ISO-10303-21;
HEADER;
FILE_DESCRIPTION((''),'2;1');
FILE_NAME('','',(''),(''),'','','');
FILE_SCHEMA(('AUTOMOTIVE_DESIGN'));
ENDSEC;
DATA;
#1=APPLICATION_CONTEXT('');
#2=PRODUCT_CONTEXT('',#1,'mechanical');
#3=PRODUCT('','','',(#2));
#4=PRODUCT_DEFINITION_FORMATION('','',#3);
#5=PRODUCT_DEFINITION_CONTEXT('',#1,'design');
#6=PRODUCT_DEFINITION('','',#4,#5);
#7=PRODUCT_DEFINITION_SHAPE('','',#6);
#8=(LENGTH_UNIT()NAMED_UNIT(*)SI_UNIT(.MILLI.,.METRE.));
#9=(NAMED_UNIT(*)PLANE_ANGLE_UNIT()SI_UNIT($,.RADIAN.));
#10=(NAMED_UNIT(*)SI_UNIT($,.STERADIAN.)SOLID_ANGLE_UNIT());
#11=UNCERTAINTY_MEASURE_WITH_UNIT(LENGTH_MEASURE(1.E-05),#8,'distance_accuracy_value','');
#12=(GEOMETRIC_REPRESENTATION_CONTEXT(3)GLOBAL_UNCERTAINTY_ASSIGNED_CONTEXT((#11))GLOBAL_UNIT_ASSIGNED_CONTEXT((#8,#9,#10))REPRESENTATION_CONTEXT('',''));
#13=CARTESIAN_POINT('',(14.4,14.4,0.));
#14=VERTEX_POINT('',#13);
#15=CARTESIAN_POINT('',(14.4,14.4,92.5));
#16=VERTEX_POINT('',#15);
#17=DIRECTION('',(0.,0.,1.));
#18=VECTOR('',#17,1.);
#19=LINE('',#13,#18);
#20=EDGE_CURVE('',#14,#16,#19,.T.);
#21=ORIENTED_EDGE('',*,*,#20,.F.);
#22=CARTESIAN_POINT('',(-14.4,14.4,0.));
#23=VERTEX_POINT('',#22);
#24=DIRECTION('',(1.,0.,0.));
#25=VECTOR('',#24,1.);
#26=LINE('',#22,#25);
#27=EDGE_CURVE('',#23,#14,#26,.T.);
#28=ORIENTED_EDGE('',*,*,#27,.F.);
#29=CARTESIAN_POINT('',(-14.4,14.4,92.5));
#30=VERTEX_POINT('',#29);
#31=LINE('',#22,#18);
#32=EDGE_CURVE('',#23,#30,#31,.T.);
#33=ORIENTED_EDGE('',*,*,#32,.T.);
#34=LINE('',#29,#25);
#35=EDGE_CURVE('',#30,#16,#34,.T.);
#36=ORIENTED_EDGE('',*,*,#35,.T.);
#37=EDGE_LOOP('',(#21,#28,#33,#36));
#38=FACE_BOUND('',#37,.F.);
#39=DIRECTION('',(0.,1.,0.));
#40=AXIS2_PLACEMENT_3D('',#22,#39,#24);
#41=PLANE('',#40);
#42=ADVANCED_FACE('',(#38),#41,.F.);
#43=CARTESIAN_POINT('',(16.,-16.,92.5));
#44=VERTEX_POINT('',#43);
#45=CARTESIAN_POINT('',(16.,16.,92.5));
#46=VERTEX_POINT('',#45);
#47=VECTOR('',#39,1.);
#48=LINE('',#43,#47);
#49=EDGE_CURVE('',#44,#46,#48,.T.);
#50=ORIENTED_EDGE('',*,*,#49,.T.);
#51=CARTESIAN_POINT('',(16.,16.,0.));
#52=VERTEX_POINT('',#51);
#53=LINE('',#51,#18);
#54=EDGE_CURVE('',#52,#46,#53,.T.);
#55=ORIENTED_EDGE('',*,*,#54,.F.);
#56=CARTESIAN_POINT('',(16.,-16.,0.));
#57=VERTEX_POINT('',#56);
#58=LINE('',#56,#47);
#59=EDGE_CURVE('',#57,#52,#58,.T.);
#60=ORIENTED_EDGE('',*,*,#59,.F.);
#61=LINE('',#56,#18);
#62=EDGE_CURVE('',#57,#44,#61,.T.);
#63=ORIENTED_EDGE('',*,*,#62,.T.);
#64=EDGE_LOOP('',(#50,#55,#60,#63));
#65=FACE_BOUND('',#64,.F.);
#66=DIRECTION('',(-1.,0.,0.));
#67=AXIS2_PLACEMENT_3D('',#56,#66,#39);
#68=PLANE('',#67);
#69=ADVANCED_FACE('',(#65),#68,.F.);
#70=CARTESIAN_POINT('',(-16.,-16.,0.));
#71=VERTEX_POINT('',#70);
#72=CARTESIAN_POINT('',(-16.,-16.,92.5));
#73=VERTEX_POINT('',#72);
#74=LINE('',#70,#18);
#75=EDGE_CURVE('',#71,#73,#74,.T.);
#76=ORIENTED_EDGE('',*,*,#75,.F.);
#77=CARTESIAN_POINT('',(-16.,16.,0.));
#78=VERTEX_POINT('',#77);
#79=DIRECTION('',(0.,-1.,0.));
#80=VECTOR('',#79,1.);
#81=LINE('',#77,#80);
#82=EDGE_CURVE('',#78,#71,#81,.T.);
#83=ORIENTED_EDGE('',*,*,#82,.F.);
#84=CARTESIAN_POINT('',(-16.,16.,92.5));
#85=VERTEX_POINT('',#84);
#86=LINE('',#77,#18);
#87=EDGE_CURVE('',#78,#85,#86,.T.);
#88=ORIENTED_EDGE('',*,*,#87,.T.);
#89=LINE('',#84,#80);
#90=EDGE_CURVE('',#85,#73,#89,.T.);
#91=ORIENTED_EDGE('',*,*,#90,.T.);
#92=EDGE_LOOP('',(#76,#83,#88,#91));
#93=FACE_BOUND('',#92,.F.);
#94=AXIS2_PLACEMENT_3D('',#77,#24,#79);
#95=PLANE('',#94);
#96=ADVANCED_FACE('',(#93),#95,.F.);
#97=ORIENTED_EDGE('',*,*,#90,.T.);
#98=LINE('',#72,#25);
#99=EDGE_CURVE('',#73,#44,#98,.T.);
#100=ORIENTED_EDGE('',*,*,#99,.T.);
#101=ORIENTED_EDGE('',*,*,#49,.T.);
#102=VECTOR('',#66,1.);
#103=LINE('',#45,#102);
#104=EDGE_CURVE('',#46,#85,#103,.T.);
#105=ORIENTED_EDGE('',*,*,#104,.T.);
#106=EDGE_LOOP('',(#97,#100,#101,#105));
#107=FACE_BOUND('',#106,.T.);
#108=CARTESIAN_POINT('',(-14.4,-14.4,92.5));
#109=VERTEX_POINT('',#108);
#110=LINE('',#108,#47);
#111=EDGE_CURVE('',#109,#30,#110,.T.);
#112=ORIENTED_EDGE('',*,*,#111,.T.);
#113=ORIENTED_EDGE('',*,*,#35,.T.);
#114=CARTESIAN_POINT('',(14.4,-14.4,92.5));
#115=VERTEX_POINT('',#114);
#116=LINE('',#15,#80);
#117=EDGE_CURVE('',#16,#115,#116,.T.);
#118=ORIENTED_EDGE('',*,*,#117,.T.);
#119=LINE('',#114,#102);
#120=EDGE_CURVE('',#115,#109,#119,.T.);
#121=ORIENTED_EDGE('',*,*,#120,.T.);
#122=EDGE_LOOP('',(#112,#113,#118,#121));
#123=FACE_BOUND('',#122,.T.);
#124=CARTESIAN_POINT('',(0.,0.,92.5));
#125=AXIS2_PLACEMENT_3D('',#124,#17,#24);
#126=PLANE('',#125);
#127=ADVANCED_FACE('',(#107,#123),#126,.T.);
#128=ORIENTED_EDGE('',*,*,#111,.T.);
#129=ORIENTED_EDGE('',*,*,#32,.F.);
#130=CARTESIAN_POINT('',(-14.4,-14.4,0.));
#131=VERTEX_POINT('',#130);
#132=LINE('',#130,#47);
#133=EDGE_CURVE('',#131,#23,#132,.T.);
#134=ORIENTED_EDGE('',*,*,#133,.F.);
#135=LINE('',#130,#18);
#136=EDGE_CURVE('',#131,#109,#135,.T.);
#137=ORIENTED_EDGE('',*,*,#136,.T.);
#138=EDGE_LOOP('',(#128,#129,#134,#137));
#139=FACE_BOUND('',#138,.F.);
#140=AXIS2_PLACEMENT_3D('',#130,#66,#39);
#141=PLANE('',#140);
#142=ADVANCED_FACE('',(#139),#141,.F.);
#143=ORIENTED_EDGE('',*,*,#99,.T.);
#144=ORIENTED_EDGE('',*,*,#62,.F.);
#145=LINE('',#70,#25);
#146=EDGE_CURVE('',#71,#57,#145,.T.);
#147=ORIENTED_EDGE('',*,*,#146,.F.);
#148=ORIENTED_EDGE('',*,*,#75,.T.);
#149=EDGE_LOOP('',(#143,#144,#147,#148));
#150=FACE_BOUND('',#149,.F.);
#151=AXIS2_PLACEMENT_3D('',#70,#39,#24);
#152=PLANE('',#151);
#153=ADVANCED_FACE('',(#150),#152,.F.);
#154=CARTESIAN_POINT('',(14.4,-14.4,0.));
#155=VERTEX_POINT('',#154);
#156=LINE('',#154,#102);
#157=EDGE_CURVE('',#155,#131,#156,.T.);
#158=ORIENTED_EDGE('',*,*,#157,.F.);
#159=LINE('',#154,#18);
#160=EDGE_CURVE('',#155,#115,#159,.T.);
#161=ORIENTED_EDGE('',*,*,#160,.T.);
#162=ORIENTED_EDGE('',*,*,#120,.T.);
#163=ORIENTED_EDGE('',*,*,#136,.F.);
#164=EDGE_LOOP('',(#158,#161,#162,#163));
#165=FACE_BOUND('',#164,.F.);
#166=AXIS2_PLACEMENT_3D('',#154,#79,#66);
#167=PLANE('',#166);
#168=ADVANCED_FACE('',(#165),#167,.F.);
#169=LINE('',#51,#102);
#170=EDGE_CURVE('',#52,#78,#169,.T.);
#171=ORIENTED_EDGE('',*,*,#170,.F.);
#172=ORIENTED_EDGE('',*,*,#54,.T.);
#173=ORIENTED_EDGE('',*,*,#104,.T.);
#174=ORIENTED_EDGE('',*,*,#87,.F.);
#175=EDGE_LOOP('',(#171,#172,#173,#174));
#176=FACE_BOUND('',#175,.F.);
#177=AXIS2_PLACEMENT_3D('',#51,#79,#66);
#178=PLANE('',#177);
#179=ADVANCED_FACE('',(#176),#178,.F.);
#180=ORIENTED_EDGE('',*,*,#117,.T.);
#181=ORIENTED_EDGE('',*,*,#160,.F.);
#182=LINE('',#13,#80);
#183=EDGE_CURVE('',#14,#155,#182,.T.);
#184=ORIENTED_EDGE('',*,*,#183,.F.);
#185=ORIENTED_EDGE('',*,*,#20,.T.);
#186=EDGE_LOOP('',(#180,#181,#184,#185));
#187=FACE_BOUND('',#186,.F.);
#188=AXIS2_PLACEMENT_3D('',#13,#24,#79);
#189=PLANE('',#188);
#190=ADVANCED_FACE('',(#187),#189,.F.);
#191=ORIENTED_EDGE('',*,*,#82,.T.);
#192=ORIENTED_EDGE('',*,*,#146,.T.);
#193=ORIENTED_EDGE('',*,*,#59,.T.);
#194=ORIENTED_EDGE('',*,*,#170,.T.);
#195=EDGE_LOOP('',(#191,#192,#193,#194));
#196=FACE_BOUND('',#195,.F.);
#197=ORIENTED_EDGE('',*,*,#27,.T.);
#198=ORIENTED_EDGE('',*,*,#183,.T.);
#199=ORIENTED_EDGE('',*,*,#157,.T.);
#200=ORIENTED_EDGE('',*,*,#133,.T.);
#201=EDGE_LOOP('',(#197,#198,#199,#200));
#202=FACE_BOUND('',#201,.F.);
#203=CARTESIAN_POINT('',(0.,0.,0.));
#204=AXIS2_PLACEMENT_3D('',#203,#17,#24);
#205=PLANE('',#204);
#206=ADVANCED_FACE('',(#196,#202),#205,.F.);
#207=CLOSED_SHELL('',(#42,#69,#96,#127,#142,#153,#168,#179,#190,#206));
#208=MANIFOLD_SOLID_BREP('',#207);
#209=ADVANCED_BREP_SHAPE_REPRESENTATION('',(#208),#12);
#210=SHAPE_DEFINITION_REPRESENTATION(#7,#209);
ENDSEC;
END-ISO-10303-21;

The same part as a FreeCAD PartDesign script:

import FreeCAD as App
import Part
import Sketcher
from FreeCAD import Vector
Q = App.Units.Quantity


def add_polygon(sketch, points):
    """Adds a closed chain of lines whose ends are joined by coincident constraints."""
    first, n = sketch.GeometryCount, len(points)
    for a, b in zip(points, points[1:] + points[:1]):
        sketch.addGeometry(Part.LineSegment(App.Vector(*a, 0), App.Vector(*b, 0)), False)
    for i in range(n):
        sketch.addConstraint(Sketcher.Constraint("Coincident", first + i, 2, first + (i + 1) % n, 1))

doc = App.newDocument("Part")
body = doc.addObject("PartDesign::Body", "Body")

sketch1 = doc.addObject("Sketcher::SketchObject", "Sketch")
body.addObject(sketch1)
sketch1.AttachmentSupport = (doc.XY_Plane, [""])
sketch1.MapMode = "FlatFace"
add_polygon(sketch1, [(-16, 16), (-16, -16), (16, -16), (16, 16)])
add_polygon(sketch1, [(-14, -14), (-14, 14), (14, 14), (14, -14)])
sketch1.addConstraint([
    Sketcher.Constraint("Vertical", 0),
    Sketcher.Constraint("Horizontal", 1),
    Sketcher.Constraint("Vertical", 2),
    Sketcher.Constraint("Horizontal", 3),
    Sketcher.Constraint("Vertical", 4),
    Sketcher.Constraint("Horizontal", 5),
    Sketcher.Constraint("Vertical", 6),
    Sketcher.Constraint("Horizontal", 7),
    Sketcher.Constraint("Symmetric", 0, 2, 2, 2, -1, 1),
    Sketcher.Constraint("Symmetric", 4, 2, 6, 2, -1, 1),
    Sketcher.Constraint("Equal", 3, 0),
    Sketcher.Constraint("Equal", 7, 4),
    Sketcher.Constraint("DistanceX", 1, 1, 1, 2, Q("32 mm")),
    Sketcher.Constraint("DistanceX", 3, 2, 4, 2, Q("1.6 mm")),
])
pad1 = doc.addObject("PartDesign::Pad", "Pad")
body.addObject(pad1)
pad1.Profile = sketch1
pad1.Length = 92.5

doc.recompute()
